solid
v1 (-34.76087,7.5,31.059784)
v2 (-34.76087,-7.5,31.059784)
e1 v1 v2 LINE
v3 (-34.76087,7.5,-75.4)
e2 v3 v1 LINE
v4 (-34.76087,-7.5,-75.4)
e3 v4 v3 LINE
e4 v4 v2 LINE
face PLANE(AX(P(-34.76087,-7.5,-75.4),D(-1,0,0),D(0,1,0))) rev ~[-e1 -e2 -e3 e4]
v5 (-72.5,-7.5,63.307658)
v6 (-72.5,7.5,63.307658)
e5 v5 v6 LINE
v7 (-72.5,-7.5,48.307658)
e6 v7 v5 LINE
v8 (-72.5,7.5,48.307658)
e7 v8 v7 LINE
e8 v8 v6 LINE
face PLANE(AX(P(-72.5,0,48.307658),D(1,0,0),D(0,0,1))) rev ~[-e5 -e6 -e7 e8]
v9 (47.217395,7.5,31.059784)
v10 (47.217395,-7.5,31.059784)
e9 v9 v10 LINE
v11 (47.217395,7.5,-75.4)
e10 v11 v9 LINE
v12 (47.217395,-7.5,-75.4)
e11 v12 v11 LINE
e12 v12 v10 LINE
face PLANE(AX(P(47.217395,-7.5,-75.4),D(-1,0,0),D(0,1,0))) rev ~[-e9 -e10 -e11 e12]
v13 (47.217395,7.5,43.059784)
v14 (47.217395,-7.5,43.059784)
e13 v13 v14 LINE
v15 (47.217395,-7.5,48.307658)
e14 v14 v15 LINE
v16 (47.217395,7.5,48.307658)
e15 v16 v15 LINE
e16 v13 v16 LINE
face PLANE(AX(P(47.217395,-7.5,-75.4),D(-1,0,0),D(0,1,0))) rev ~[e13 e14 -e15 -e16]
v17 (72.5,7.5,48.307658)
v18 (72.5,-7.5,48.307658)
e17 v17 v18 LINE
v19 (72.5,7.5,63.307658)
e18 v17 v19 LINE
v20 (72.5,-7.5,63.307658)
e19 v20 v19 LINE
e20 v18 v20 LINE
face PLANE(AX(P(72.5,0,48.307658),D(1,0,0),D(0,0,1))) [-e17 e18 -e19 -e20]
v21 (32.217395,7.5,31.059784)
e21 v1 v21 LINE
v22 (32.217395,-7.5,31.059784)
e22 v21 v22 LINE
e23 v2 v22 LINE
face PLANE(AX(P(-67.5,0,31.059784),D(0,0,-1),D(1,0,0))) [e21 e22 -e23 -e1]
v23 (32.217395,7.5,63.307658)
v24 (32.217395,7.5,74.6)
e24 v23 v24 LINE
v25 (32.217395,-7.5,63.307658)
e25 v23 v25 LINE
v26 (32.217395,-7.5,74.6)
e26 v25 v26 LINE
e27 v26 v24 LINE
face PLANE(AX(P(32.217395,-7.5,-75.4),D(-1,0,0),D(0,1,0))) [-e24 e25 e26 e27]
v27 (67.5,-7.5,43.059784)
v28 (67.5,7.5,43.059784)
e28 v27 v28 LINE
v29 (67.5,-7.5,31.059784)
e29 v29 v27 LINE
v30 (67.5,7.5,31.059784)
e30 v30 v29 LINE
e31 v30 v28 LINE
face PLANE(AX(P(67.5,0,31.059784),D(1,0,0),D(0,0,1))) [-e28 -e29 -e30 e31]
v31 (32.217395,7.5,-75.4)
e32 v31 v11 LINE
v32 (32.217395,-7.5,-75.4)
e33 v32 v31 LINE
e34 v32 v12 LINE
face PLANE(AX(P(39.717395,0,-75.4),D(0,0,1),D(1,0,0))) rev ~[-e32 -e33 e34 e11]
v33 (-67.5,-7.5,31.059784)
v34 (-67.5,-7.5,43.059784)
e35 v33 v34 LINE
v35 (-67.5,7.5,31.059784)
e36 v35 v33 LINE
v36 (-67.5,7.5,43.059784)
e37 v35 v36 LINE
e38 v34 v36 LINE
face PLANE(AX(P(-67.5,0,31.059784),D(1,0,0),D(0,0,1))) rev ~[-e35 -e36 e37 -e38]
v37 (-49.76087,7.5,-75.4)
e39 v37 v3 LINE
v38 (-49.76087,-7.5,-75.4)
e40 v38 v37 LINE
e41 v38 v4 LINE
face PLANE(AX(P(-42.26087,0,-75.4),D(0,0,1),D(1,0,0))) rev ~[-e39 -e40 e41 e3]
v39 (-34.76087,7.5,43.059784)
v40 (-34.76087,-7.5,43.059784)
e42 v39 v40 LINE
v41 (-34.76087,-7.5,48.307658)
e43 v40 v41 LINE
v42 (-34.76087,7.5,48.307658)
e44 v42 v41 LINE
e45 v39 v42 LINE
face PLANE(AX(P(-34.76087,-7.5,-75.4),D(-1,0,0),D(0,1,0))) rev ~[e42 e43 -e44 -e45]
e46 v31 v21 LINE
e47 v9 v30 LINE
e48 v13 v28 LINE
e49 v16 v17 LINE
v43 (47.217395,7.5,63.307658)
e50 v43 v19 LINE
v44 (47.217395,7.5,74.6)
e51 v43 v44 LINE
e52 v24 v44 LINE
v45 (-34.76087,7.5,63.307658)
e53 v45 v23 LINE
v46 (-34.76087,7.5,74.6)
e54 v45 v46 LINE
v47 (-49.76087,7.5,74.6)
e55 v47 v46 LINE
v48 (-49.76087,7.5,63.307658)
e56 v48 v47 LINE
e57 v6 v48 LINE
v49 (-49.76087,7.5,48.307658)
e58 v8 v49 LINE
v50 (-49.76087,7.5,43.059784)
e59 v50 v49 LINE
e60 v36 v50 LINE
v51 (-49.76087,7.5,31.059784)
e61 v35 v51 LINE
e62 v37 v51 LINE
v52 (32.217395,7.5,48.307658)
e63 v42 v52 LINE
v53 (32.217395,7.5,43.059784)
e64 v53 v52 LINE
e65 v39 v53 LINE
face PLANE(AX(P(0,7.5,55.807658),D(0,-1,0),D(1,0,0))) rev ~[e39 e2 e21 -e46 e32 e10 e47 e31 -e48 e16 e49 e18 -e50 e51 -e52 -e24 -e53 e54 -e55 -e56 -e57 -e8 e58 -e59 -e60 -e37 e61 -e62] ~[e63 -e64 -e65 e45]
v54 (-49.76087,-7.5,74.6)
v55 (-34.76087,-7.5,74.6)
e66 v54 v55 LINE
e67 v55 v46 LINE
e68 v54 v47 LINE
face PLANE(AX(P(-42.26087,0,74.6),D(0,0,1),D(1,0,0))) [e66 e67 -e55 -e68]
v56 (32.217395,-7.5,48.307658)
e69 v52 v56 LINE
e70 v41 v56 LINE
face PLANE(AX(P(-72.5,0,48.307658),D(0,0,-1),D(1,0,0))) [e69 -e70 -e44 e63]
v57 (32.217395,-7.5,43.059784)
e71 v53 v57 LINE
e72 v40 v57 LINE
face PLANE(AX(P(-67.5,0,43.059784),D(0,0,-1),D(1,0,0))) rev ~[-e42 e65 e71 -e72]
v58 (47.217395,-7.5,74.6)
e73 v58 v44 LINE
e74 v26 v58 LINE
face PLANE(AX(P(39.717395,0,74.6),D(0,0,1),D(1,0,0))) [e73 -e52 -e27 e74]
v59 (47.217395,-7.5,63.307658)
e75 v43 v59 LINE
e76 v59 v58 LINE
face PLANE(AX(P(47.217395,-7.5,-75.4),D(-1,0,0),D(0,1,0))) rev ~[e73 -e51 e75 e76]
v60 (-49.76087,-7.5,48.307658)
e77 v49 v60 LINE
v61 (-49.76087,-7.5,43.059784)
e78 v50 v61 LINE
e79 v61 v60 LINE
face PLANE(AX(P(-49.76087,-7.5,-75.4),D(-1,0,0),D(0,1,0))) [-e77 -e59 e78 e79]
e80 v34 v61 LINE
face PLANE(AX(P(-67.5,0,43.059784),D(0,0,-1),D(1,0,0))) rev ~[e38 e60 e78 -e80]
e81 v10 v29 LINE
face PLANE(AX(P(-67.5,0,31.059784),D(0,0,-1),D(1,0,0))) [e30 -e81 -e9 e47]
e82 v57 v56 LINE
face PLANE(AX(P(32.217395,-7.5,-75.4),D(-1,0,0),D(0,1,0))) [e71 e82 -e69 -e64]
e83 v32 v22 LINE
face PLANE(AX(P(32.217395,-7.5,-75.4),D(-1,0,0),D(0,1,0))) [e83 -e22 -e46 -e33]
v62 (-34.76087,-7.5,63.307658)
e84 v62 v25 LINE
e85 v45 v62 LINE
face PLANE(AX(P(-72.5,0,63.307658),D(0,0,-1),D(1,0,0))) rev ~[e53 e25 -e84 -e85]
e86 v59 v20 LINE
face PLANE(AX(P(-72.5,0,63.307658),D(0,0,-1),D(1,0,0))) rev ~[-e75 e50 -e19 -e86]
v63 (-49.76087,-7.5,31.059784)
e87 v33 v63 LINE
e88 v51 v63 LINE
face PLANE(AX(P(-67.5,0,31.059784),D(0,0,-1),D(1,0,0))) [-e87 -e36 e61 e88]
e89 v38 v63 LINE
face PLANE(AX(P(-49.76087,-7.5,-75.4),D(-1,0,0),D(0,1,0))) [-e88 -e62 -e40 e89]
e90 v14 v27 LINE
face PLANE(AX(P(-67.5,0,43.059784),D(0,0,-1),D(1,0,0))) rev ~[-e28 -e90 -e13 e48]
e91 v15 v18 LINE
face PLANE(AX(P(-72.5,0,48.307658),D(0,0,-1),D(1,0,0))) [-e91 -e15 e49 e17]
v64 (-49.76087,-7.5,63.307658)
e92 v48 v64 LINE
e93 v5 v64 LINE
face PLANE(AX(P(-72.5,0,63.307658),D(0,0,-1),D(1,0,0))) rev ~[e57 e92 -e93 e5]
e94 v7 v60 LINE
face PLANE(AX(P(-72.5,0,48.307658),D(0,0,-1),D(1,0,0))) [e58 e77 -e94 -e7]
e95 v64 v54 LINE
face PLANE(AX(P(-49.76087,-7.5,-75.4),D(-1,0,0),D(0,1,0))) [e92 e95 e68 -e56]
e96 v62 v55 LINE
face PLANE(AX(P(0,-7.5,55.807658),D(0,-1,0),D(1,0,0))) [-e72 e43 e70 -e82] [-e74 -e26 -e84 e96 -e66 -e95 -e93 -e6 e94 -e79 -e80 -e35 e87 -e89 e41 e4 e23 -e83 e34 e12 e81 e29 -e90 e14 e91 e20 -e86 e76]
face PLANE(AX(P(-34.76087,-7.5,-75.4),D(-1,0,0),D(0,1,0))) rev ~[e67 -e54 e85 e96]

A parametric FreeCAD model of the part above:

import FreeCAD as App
import Part
import Sketcher
from FreeCAD import Vector
Q = App.Units.Quantity


def add_polygon(sketch, points):
    """Adds a closed chain of lines whose ends are joined by coincident constraints."""
    first, n = sketch.GeometryCount, len(points)
    for a, b in zip(points, points[1:] + points[:1]):
        sketch.addGeometry(Part.LineSegment(App.Vector(*a, 0), App.Vector(*b, 0)), False)
    for i in range(n):
        sketch.addConstraint(Sketcher.Constraint("Coincident", first + i, 2, first + (i + 1) % n, 1))

doc = App.newDocument("Part")
body = doc.addObject("PartDesign::Body", "Body")
body.AllowCompound = True

# Sketch on XY plane
sketch1 = body.newObject("Sketcher::SketchObject", "Sketch")
sketch1.AttachmentSupport = (doc.getObject("XY_Plane"), [""])
sketch1.MapMode = "FlatFace"
add_polygon(sketch1, [(-50, 8), (-50, -8), (-35, -8), (-35, 8)])  # lines 0-3
add_polygon(sketch1, [(32, 8), (32, -8), (47, -8), (47, 8)])  # lines 4-7
sketch1.addConstraint([
    Sketcher.Constraint("Vertical", 0),
    Sketcher.Constraint("Horizontal", 1),
    Sketcher.Constraint("Vertical", 2),
    Sketcher.Constraint("Horizontal", 3),
    Sketcher.Constraint("Vertical", 4),
    Sketcher.Constraint("Horizontal", 5),
    Sketcher.Constraint("Vertical", 6),
    Sketcher.Constraint("Horizontal", 7),
    Sketcher.Constraint("Horizontal", 1, 2, 4, 2),
    Sketcher.Constraint("Horizontal", 3, 2, 6, 2),
    Sketcher.Constraint("Equal", 3, 5),
    Sketcher.Constraint("Equal", 7, 0),
    Sketcher.Constraint("DistanceX", 1, 1, 1, 2, Q("15 mm")),
    Sketcher.Constraint("DistanceY", 0, 2, -1, 1, Q("7.5 mm")),
    Sketcher.Constraint("DistanceX", 0, 2, -1, 1, Q("49.76087 mm")),
    Sketcher.Constraint("DistanceX", -1, 1, 4, 2, Q("32.217395 mm")),
])
pad1 = body.newObject("PartDesign::Pad", "Pad")
pad1.Profile = sketch1
pad1.Length = 150
body2 = doc.addObject("PartDesign::Body", "Body001")
body2.AllowCompound = True
doc.recompute()

body.Placement = App.Placement(Vector(0, 0, -75.4), App.Rotation(Vector(0, 0, 1), 0))
boolean = body2.newObject("PartDesign::Boolean", "Boolean")
boolean.Type = "Fuse"
boolean.addObjects([body])

# Sketch on XZ plane
sketch2 = body2.newObject("Sketcher::SketchObject", "Sketch001")
sketch2.AttachmentSupport = (doc.getObject("XZ_Plane001"), [""])
sketch2.MapMode = "FlatFace"
add_polygon(sketch2, [(-68, 43), (-68, 31), (68, 31), (68, 43)])  # lines 0-3
sketch2.addConstraint([
    Sketcher.Constraint("Vertical", 0),
    Sketcher.Constraint("Horizontal", 1),
    Sketcher.Constraint("Vertical", 2),
    Sketcher.Constraint("Horizontal", 3),
    Sketcher.Constraint("DistanceX", 1, 1, 1, 2, Q("135 mm")),
    Sketcher.Constraint("DistanceY", 0, 2, 0, 1, Q("12 mm")),
    Sketcher.Constraint("DistanceX", 0, 2, -1, 1, Q("67.5 mm")),
    Sketcher.Constraint("DistanceY", -1, 1, 0, 2, Q("31.059784 mm")),
])
pad2 = body2.newObject("PartDesign::Pad", "Pad001")
pad2.Profile = sketch2
pad2.Length = 15
pad2.Midplane = True

# Sketch on XZ plane
sketch3 = body2.newObject("Sketcher::SketchObject", "Sketch002")
sketch3.AttachmentSupport = (doc.getObject("XZ_Plane001"), [""])
sketch3.MapMode = "FlatFace"
add_polygon(sketch3, [(-72, 63), (-72, 48), (72, 48), (72, 63)])  # lines 0-3
sketch3.addConstraint([
    Sketcher.Constraint("Vertical", 0),
    Sketcher.Constraint("Horizontal", 1),
    Sketcher.Constraint("Vertical", 2),
    Sketcher.Constraint("Horizontal", 3),
    Sketcher.Constraint("DistanceX", 1, 1, 1, 2, Q("145 mm")),
    Sketcher.Constraint("DistanceY", 0, 2, 0, 1, Q("15 mm")),
    Sketcher.Constraint("DistanceX", 0, 2, -1, 1, Q("72.5 mm")),
    Sketcher.Constraint("DistanceY", -1, 1, 0, 2, Q("48.307658 mm")),
])
pad3 = body2.newObject("PartDesign::Pad", "Pad002")
pad3.Profile = sketch3
pad3.Length = 15
pad3.Midplane = True

doc.recompute()
